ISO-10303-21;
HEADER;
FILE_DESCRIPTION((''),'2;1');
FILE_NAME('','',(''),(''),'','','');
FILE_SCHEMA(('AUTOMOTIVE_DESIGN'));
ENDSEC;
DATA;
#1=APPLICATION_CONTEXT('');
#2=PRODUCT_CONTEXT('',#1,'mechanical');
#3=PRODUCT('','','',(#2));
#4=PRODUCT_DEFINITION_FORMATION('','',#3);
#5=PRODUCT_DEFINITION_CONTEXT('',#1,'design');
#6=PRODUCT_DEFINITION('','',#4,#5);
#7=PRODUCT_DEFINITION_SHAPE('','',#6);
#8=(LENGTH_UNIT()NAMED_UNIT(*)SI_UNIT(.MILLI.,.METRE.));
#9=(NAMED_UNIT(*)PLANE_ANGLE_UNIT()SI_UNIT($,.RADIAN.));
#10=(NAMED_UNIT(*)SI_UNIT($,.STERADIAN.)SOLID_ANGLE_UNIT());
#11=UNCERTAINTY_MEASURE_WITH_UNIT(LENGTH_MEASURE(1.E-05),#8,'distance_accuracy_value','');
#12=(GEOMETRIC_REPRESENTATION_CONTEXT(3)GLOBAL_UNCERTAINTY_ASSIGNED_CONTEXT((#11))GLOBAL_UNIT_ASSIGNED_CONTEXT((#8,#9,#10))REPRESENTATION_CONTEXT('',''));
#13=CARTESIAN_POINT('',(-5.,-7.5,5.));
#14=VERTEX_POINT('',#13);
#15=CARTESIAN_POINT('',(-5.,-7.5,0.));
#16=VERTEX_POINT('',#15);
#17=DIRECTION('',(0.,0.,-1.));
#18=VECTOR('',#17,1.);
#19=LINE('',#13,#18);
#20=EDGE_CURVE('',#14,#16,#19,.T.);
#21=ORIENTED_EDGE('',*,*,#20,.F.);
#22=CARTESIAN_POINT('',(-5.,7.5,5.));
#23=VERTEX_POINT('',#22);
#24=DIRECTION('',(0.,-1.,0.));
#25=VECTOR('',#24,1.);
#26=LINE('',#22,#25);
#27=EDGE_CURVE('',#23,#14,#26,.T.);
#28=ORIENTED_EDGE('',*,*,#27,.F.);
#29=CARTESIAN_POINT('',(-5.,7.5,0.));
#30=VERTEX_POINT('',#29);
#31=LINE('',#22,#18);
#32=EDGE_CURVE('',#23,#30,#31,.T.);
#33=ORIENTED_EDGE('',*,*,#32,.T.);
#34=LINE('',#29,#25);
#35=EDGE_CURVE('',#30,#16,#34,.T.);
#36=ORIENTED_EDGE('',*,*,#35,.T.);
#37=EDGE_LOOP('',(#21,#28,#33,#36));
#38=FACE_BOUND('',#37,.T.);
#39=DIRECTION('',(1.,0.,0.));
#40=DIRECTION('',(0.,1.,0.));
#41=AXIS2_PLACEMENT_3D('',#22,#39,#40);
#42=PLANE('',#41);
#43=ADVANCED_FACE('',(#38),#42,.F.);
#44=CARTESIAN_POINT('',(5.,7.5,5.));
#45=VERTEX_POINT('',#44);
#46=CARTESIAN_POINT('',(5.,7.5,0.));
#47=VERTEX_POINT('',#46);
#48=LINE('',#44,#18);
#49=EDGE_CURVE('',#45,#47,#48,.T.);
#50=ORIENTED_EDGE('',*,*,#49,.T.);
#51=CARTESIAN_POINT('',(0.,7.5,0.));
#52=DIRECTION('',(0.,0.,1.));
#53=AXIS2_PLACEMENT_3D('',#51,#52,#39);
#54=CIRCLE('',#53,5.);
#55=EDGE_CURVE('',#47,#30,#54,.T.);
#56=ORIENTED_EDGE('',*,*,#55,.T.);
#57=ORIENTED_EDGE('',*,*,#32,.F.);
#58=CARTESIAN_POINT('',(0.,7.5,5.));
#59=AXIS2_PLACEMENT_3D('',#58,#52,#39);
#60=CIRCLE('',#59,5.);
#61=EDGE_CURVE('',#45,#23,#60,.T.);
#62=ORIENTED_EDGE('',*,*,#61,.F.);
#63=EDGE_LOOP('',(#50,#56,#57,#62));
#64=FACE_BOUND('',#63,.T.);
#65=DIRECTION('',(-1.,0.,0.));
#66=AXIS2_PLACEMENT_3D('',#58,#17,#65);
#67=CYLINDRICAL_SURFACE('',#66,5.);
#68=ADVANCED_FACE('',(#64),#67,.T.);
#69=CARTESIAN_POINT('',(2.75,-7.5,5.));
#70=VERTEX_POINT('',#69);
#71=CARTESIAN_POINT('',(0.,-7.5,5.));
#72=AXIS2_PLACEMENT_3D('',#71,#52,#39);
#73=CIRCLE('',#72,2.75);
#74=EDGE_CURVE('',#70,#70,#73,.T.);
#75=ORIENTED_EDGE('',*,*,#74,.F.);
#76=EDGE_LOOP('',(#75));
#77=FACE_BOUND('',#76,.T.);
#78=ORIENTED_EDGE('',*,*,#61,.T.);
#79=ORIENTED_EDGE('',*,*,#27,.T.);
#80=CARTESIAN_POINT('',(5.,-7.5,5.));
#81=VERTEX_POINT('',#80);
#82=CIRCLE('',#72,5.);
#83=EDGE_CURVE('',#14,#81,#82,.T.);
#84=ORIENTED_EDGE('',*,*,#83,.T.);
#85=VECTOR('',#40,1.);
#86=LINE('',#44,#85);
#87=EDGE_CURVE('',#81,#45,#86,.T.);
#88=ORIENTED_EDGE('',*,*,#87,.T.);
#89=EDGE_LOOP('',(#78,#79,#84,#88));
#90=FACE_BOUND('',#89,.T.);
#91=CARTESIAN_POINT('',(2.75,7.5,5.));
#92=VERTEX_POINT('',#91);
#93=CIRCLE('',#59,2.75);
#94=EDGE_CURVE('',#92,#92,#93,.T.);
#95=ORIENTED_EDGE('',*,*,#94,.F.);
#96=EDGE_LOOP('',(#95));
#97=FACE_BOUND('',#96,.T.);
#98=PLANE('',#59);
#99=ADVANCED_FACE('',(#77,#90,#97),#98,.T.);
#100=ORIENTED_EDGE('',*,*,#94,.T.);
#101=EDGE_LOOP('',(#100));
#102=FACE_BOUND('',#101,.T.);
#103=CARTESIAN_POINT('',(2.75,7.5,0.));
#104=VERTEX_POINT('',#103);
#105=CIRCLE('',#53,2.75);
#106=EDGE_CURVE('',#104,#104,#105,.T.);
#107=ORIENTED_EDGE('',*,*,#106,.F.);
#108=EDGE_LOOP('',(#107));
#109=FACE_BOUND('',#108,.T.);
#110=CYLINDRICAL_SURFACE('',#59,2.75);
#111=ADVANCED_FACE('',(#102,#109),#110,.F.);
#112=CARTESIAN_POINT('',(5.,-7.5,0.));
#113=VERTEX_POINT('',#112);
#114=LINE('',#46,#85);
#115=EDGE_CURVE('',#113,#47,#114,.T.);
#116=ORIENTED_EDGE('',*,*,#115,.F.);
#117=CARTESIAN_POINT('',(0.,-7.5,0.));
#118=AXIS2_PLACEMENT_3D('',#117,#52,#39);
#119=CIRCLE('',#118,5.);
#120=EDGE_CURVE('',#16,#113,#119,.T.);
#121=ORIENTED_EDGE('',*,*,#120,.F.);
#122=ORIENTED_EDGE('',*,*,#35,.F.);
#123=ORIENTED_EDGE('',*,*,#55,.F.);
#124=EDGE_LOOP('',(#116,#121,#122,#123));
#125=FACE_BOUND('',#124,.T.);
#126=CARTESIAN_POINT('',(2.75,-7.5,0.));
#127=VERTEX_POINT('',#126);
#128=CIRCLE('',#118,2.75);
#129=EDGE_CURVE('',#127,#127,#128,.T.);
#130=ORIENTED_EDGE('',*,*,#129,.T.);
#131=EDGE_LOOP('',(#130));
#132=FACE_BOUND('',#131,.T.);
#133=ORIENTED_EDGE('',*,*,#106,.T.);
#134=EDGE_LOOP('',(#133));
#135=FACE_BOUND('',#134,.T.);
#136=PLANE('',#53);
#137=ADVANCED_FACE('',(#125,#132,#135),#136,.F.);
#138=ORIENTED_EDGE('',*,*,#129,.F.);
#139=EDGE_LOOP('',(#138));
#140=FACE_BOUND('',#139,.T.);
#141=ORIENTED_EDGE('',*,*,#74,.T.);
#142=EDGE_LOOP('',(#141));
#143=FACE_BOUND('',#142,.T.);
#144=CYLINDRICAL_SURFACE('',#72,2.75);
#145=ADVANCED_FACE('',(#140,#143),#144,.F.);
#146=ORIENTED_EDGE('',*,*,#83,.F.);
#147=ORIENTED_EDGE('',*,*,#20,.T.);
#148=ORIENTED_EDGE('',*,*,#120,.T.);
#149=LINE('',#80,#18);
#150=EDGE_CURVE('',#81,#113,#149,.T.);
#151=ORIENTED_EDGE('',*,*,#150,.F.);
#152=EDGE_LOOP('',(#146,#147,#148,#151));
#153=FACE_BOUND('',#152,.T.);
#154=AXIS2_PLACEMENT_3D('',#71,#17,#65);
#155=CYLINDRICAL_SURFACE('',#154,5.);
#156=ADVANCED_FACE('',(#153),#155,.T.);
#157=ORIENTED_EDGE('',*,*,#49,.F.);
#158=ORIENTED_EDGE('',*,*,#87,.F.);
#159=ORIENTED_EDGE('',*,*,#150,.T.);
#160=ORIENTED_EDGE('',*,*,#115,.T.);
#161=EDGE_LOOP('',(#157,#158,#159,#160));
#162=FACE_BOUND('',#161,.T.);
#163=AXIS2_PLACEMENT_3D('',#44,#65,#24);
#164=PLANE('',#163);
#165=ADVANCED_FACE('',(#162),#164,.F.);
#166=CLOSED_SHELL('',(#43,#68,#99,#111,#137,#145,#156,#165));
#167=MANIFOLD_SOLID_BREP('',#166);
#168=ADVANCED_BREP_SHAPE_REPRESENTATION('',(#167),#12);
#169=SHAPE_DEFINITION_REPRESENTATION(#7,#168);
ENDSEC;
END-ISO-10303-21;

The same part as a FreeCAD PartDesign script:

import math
import FreeCAD as App
import Part
import Sketcher
Q = App.Units.Quantity

doc = App.newDocument("Part")
body = doc.addObject("PartDesign::Body", "Body")

sketch1 = body.newObject("Sketcher::SketchObject", "Sketch")
sketch1.AttachmentSupport = (doc.getObject("XY_Plane"), [""])
sketch1.MapMode = "FlatFace"
sketch1.addGeometry(Part.LineSegment(App.Vector(5, -8, 0), App.Vector(5, 8, 0)), False)
sketch1.addGeometry(Part.ArcOfCircle(Part.Circle(App.Vector(0, 8, 0), App.Vector(0, 0, 1), 5), math.radians(0), math.radians(180)), False)
sketch1.addGeometry(Part.LineSegment(App.Vector(-5, 8, 0), App.Vector(-5, -8, 0)), False)
sketch1.addGeometry(Part.ArcOfCircle(Part.Circle(App.Vector(0, -8, 0), App.Vector(0, 0, 1), 5), math.radians(180), math.radians(360)), False)
sketch1.addConstraint(Sketcher.Constraint("Tangent", 0, 2, 1, 1))
sketch1.addConstraint(Sketcher.Constraint("Tangent", 1, 2, 2, 1))
sketch1.addConstraint(Sketcher.Constraint("Tangent", 2, 2, 3, 1))
sketch1.addConstraint(Sketcher.Constraint("Tangent", 3, 2, 0, 1))
sketch1.addConstraint(Sketcher.Constraint("Vertical", 0))
sketch1.addConstraint(Sketcher.Constraint("Vertical", 2))
sketch1.addConstraint(Sketcher.Constraint("Symmetric", 1, 3, 3, 3, -1, 1))
sketch1.addConstraint(Sketcher.Constraint("Radius", 1, Q("5 mm")))
sketch1.addConstraint(Sketcher.Constraint("DistanceY", 0, 1, 0, 2, Q("15 mm")))
pad1 = body.newObject("PartDesign::Pad", "Pad")
pad1.Profile = sketch1
pad1.Length = 5

sketch2 = body.newObject("Sketcher::SketchObject", "Sketch001")
sketch2.AttachmentSupport = (doc.getObject("XY_Plane"), [""])
sketch2.MapMode = "FlatFace"
sketch2.AttachmentOffset = App.Placement(App.Vector(0, 0, 5), App.Rotation())
sketch2.addGeometry(Part.Circle(App.Vector(0, 7.5, 0), App.Vector(0, 0, 1), 2.8), False)
sketch2.addGeometry(Part.Circle(App.Vector(0, -7.5, 0), App.Vector(0, 0, 1), 2.8), False)
sketch2.addConstraint(Sketcher.Constraint("Equal", 0, 1))
sketch2.addConstraint(Sketcher.Constraint("Symmetric", 0, 3, 1, 3, -1, 1))
sketch2.addConstraint(Sketcher.Constraint("PointOnObject", 0, 3, -2))
sketch2.addConstraint(Sketcher.Constraint("Diameter", 0, Q("5.5 mm")))
sketch2.addConstraint(Sketcher.Constraint("DistanceY", 1, 3, 0, 3, Q("15 mm")))
doc.recompute()
hole = body.newObject("PartDesign::Hole", "Hole")
hole.Profile = sketch2
hole.ThreadType = "None"
hole.Diameter = 5.5
hole.DepthType = "ThroughAll"

doc.recompute()
